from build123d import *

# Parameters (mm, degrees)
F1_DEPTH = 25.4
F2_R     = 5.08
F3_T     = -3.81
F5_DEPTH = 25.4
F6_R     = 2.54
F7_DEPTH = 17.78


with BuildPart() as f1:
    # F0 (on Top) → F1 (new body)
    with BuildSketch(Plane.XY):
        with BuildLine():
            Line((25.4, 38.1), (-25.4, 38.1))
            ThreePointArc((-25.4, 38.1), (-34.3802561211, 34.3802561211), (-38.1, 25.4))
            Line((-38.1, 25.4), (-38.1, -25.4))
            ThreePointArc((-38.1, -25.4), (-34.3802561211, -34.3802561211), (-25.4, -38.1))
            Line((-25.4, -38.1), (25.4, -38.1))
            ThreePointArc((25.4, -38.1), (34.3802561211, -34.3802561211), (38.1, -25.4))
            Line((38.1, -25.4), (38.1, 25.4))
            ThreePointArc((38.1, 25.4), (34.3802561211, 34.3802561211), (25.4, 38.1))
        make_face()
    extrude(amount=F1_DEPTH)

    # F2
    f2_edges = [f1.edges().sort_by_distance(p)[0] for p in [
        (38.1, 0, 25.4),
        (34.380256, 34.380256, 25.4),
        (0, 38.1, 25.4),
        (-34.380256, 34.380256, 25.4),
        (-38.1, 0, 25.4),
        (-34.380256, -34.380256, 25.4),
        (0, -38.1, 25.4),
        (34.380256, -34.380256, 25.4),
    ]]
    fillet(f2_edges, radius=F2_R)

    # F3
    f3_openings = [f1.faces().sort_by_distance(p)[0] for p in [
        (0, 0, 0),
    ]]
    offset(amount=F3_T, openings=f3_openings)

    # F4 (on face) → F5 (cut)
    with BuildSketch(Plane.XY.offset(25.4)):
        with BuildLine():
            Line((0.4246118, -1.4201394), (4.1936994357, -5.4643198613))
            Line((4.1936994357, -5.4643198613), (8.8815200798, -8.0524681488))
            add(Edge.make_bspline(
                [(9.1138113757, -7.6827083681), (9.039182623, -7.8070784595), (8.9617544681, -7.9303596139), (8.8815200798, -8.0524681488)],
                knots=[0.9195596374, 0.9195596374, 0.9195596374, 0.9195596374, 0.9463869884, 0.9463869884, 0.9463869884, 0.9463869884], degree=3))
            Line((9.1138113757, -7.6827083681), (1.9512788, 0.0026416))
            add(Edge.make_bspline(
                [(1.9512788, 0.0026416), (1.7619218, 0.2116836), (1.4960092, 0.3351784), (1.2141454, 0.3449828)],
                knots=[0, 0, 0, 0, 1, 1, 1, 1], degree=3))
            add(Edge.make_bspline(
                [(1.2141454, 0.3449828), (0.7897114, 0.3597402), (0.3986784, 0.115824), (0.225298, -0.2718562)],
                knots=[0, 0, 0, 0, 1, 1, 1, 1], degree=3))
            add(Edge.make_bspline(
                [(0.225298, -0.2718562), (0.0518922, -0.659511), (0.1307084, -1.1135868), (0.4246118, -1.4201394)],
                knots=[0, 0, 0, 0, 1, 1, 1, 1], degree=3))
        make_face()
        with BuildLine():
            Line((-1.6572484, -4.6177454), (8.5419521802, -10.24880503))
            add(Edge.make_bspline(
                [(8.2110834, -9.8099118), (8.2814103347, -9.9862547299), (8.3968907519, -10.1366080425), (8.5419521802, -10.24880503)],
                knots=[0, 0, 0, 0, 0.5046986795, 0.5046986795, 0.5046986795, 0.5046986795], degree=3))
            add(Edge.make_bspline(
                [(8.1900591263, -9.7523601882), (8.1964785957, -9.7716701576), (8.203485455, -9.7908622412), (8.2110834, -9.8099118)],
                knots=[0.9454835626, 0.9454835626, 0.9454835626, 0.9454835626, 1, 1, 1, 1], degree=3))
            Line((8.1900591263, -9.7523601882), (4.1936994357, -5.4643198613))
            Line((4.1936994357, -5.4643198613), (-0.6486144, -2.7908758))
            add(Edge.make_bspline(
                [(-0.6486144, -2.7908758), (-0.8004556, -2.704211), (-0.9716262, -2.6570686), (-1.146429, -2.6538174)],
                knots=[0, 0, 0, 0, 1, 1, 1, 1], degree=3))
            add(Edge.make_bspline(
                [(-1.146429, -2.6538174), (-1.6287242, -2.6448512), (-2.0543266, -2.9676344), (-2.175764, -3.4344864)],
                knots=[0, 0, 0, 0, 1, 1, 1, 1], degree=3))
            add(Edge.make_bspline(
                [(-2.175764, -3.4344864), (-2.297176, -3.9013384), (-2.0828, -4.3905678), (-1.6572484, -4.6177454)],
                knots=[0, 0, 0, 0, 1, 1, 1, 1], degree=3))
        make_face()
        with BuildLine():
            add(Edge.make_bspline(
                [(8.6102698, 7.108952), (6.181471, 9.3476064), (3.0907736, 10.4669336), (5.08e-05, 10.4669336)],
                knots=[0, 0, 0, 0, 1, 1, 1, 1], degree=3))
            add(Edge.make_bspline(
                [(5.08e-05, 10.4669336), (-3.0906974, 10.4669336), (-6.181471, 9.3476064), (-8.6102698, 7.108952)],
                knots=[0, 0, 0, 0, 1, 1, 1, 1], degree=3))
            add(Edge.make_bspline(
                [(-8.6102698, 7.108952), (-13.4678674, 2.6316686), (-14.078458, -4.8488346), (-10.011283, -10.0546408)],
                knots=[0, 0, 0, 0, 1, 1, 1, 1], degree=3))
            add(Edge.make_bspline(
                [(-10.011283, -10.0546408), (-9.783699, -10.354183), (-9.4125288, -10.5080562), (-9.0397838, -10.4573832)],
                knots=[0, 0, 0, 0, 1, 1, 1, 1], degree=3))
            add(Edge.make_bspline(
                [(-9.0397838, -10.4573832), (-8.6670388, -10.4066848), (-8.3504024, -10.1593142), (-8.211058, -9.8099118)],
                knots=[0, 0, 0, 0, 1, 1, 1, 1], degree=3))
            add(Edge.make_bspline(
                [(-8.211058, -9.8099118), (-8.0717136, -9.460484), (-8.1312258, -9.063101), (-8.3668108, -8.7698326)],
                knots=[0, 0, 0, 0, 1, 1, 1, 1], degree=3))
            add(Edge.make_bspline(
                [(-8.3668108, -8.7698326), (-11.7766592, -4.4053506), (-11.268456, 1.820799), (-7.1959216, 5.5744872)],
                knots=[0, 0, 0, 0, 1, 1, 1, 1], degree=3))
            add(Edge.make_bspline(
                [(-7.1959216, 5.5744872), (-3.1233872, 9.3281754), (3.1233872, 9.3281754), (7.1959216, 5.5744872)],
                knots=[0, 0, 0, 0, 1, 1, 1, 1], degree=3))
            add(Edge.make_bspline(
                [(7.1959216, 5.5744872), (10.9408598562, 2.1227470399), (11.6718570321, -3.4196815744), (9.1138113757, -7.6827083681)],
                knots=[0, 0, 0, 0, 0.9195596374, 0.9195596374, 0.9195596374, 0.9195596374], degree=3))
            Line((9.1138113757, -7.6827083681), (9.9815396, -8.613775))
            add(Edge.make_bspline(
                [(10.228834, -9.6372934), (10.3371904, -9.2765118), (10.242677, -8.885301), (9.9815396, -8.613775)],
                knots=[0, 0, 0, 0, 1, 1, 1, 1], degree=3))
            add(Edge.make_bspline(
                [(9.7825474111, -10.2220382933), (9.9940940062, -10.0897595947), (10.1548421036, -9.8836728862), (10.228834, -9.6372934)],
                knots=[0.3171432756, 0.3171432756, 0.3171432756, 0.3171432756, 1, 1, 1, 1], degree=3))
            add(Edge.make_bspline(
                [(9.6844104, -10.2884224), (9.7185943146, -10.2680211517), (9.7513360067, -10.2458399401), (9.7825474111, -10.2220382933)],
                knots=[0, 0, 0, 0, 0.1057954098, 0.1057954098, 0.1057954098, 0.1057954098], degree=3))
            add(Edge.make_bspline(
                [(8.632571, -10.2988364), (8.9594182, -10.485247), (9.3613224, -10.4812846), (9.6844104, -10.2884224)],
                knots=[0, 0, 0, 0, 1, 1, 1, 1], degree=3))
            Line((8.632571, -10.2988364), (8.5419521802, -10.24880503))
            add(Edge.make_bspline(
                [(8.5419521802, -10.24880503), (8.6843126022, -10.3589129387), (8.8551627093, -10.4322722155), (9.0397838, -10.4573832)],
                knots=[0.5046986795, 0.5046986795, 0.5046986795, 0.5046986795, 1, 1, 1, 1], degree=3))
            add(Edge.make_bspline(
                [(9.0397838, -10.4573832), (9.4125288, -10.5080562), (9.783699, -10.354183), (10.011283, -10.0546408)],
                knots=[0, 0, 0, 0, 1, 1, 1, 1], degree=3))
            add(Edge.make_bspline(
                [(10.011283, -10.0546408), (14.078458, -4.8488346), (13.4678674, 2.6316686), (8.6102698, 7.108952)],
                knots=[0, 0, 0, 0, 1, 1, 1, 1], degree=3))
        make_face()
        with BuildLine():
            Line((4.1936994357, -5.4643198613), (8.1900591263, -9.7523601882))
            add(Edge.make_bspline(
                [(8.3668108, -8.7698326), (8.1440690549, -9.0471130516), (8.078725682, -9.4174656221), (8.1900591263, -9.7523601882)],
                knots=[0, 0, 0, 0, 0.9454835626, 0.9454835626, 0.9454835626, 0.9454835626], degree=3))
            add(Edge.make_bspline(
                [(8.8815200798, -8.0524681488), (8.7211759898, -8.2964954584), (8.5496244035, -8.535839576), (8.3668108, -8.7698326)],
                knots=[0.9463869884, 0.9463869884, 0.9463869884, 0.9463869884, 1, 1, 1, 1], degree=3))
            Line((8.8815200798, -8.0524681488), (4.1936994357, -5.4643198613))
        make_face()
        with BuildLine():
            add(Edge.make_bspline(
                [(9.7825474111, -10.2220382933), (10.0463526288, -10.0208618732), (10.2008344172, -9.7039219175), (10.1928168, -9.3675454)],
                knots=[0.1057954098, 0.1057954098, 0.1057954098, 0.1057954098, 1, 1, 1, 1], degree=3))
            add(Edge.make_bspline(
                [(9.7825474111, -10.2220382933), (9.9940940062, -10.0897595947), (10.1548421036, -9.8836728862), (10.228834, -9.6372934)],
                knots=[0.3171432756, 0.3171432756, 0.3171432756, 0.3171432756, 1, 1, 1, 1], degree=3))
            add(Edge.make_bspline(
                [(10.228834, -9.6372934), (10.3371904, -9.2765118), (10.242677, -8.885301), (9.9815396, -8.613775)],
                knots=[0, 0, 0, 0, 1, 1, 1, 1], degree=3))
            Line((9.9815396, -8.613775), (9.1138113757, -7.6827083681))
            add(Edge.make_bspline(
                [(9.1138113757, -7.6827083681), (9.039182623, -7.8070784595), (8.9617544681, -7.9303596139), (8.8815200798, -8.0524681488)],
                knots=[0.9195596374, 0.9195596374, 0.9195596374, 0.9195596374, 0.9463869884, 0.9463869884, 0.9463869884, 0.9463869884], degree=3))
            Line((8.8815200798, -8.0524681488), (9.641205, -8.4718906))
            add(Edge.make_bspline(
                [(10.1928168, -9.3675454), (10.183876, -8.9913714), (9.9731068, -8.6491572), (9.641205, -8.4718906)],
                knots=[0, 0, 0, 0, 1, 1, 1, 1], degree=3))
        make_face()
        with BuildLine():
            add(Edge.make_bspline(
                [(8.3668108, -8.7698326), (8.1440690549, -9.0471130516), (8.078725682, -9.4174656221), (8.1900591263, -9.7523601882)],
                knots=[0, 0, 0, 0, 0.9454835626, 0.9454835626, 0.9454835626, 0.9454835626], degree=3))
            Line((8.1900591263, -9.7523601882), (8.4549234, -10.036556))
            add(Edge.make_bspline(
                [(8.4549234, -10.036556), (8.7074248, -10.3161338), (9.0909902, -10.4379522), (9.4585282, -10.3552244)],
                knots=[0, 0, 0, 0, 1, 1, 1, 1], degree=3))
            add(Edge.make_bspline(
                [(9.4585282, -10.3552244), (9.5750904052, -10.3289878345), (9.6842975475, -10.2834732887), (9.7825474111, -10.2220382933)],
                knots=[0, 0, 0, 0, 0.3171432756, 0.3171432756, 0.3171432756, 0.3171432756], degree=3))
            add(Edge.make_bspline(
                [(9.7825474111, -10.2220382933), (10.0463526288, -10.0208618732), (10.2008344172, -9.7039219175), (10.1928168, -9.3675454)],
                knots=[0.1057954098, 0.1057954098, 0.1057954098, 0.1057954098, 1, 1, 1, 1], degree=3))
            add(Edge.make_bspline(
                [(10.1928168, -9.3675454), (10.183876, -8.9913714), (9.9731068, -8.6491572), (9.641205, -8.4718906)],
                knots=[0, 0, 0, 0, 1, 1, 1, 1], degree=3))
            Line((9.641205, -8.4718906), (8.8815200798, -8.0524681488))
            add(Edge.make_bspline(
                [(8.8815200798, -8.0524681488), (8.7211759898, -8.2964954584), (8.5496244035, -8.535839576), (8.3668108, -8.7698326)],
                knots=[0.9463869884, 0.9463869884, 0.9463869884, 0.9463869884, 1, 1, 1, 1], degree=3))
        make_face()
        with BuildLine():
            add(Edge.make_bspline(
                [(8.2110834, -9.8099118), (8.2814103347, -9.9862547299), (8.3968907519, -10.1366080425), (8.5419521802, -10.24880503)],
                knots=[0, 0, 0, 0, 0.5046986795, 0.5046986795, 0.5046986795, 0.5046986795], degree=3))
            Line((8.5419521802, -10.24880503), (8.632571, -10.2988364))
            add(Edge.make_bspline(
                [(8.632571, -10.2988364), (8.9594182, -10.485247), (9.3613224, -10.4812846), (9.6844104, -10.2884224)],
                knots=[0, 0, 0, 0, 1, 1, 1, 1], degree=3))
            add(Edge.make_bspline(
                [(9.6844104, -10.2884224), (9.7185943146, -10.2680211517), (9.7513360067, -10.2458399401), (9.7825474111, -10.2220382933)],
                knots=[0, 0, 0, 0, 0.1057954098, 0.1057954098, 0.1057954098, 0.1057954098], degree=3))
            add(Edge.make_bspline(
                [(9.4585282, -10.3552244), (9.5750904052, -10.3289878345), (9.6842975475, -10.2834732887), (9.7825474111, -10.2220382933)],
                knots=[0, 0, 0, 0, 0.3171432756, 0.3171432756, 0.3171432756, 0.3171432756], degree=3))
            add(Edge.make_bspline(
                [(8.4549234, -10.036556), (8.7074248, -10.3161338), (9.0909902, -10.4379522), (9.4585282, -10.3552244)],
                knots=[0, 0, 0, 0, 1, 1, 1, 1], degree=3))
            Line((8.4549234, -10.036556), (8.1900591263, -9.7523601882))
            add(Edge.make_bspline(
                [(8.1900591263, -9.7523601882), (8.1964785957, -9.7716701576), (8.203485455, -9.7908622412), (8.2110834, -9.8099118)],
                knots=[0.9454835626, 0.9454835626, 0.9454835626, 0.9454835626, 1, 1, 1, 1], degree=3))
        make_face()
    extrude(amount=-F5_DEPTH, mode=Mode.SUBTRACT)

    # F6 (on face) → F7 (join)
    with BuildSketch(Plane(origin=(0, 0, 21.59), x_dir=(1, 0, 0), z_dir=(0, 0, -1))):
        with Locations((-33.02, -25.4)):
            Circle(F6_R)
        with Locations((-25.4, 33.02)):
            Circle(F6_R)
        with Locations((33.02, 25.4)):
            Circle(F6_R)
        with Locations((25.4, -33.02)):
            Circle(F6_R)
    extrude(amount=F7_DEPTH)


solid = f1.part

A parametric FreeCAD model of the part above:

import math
import FreeCAD as App
import Part
import Sketcher
Q = App.Units.Quantity


def edges_at(feature, points):
    """Names of the edges that pass closest to the given points."""
    edges = feature.Shape.Edges
    near = lambda p: min(range(len(edges)), key=lambda i: edges[i].distToShape(Part.Vertex(*p))[0])
    return sorted({f"Edge{near(p) + 1}" for p in points})


def faces_at(feature, points):
    """Names of the faces that lie closest to the given points."""
    faces = feature.Shape.Faces
    near = lambda p: min(range(len(faces)), key=lambda i: faces[i].distToShape(Part.Vertex(*p))[0])
    return sorted({f"Face{near(p) + 1}" for p in points})

doc = App.newDocument("Part")
body = doc.addObject("PartDesign::Body", "Body")

# Sketch on XY plane
sketch1 = body.newObject("Sketcher::SketchObject", "Sketch")
sketch1.AttachmentSupport = (doc.getObject("XY_Plane"), [""])
sketch1.MapMode = "FlatFace"
sketch1.addGeometry(Part.LineSegment(App.Vector(25, 38, 0), App.Vector(-25, 38, 0)), False)
sketch1.addGeometry(Part.ArcOfCircle(Part.Circle(App.Vector(-25, 25, 0), App.Vector(0, 0, 1), 13), math.radians(90), math.radians(180)), False)
sketch1.addGeometry(Part.LineSegment(App.Vector(-38, 25, 0), App.Vector(-38, -25, 0)), False)
sketch1.addGeometry(Part.ArcOfCircle(Part.Circle(App.Vector(-25, -25, 0), App.Vector(0, 0, 1), 13), math.radians(180), math.radians(270)), False)
sketch1.addGeometry(Part.LineSegment(App.Vector(-25, -38, 0), App.Vector(25, -38, 0)), False)
sketch1.addGeometry(Part.ArcOfCircle(Part.Circle(App.Vector(25, -25, 0), App.Vector(0, 0, 1), 13), math.radians(-90), math.radians(0)), False)
sketch1.addGeometry(Part.LineSegment(App.Vector(38, -25, 0), App.Vector(38, 25, 0)), False)
sketch1.addGeometry(Part.ArcOfCircle(Part.Circle(App.Vector(25, 25, 0), App.Vector(0, 0, 1), 13), math.radians(0), math.radians(90)), False)
sketch1.addConstraint(Sketcher.Constraint("Tangent", 0, 2, 1, 1))
sketch1.addConstraint(Sketcher.Constraint("Tangent", 1, 2, 2, 1))
sketch1.addConstraint(Sketcher.Constraint("Tangent", 2, 2, 3, 1))
sketch1.addConstraint(Sketcher.Constraint("Tangent", 3, 2, 4, 1))
sketch1.addConstraint(Sketcher.Constraint("Tangent", 4, 2, 5, 1))
sketch1.addConstraint(Sketcher.Constraint("Tangent", 5, 2, 6, 1))
sketch1.addConstraint(Sketcher.Constraint("Tangent", 6, 2, 7, 1))
sketch1.addConstraint(Sketcher.Constraint("Tangent", 7, 2, 0, 1))
sketch1.addConstraint(Sketcher.Constraint("Horizontal", 0))
sketch1.addConstraint(Sketcher.Constraint("Vertical", 2))
sketch1.addConstraint(Sketcher.Constraint("Horizontal", 4))
sketch1.addConstraint(Sketcher.Constraint("Vertical", 6))
sketch1.addConstraint(Sketcher.Constraint("Equal", 1, 3))
sketch1.addConstraint(Sketcher.Constraint("Equal", 3, 5))
sketch1.addConstraint(Sketcher.Constraint("Equal", 5, 7))
sketch1.addConstraint(Sketcher.Constraint("Symmetric", 1, 3, 5, 3, -1, 1))
sketch1.addConstraint(Sketcher.Constraint("Equal", 4, 2))
sketch1.addConstraint(Sketcher.Constraint("Radius", 1, Q("0.5 in")))
sketch1.addConstraint(Sketcher.Constraint("DistanceX", 0, 2, 0, 1, Q("2 in")))
pad1 = body.newObject("PartDesign::Pad", "Pad")
pad1.Profile = sketch1
pad1.Length = Q("1 in")
doc.recompute()

fillet = body.newObject("PartDesign::Fillet", "Fillet")
fillet.Base = (pad1, edges_at(pad1, [
    (38.1, 0, 25.4),
    (34.38, 34.38, 25.4),
    (0, 38.1, 25.4),
    (-34.38, 34.38, 25.4),
    (-38.1, 0, 25.4),
    (-34.38, -34.38, 25.4),
    (0, -38.1, 25.4),
    (34.38, -34.38, 25.4),
]))
fillet.Radius = Q("0.2 in")
doc.recompute()

thickness = body.newObject("PartDesign::Thickness", "Thickness")
thickness.Base = (fillet, faces_at(fillet, [(0, 0, 0)]))
thickness.Value = Q("0.15 in")
thickness.Reversed = True
thickness.Join = "Arc"

# Sketch on XY plane
sketch2 = body.newObject("Sketcher::SketchObject", "Sketch001")
sketch2.AttachmentSupport = (doc.getObject("XY_Plane"), [""])
sketch2.MapMode = "FlatFace"
sketch2.AttachmentOffset = App.Placement(App.Vector(0, 0, 1 * 25.4), App.Rotation())
sketch2.addGeometry(Part.LineSegment(App.Vector(-1.657248, -4.617745, 0), App.Vector(8.541952, -10.248805, 0)), False)
sketch2.addGeometry(Part.BSplineCurve([App.Vector(8.541952, -10.248805, 0), App.Vector(8.684313, -10.358913, 0), App.Vector(8.855163, -10.432272, 0), App.Vector(9.039784, -10.457383, 0)], [4, 4], [0.50469868, 1], False, 3, [1, 1, 1, 1], False), False)
sketch2.addGeometry(Part.BSplineCurve([App.Vector(9.039784, -10.457383, 0), App.Vector(9.412529, -10.508056, 0), App.Vector(9.783699, -10.354183, 0), App.Vector(10.011283, -10.054641, 0)], [4, 4], [0, 1], False, 3, [1, 1, 1, 1], False), False)
sketch2.addGeometry(Part.BSplineCurve([App.Vector(10.011283, -10.054641, 0), App.Vector(14.078458, -4.848835, 0), App.Vector(13.467867, 2.631669, 0), App.Vector(8.61027, 7.108952, 0)], [4, 4], [0, 1], False, 3, [1, 1, 1, 1], False), False)
sketch2.addGeometry(Part.BSplineCurve([App.Vector(8.61027, 7.108952, 0), App.Vector(6.181471, 9.347606, 0), App.Vector(3.090774, 10.466934, 0), App.Vector(-3.090697, 10.466934, 0), App.Vector(-6.181471, 9.347606, 0), App.Vector(-8.61027, 7.108952, 0)], [4, 2, 4], [0, 1, 2.000008218], False, 3, [1, 1, 1, 1, 1, 1], False), False)
sketch2.addGeometry(Part.BSplineCurve([App.Vector(-8.61027, 7.108952, 0), App.Vector(-13.467867, 2.631669, 0), App.Vector(-14.078458, -4.848835, 0), App.Vector(-10.011283, -10.054641, 0)], [4, 4], [0, 1], False, 3, [1, 1, 1, 1], False), False)
sketch2.addGeometry(Part.BSplineCurve([App.Vector(-10.011283, -10.054641, 0), App.Vector(-9.783699, -10.354183, 0), App.Vector(-9.412529, -10.508056, 0), App.Vector(-9.039784, -10.457383, 0)], [4, 4], [0, 1], False, 3, [1, 1, 1, 1], False), False)
sketch2.addGeometry(Part.BSplineCurve([App.Vector(-9.039784, -10.457383, 0), App.Vector(-8.667039, -10.406685, 0), App.Vector(-8.350402, -10.159314, 0), App.Vector(-8.211058, -9.809912, 0)], [4, 4], [0, 1], False, 3, [1, 1, 1, 1], False), False)
sketch2.addGeometry(Part.BSplineCurve([App.Vector(-8.211058, -9.809912, 0), App.Vector(-8.071714, -9.460484, 0), App.Vector(-8.131226, -9.063101, 0), App.Vector(-8.366811, -8.769833, 0)], [4, 4], [0, 1], False, 3, [1, 1, 1, 1], False), False)
sketch2.addGeometry(Part.BSplineCurve([App.Vector(-8.366811, -8.769833, 0), App.Vector(-11.776659, -4.405351, 0), App.Vector(-11.268456, 1.820799, 0), App.Vector(-3.123387, 9.328175, 0), App.Vector(3.123387, 9.328175, 0), App.Vector(7.195922, 5.574487, 0)], [4, 2, 4], [0, 1, 2], False, 3, [1, 1, 1, 1, 1, 1], False), False)
sketch2.addGeometry(Part.BSplineCurve([App.Vector(7.195922, 5.574487, 0), App.Vector(10.94086, 2.122747, 0), App.Vector(11.671857, -3.419682, 0), App.Vector(9.113811, -7.682708, 0)], [4, 4], [0, 0.919559637], False, 3, [1, 1, 1, 1], False), False)
sketch2.addGeometry(Part.LineSegment(App.Vector(9.113811, -7.682708, 0), App.Vector(1.951279, 0.002642, 0)), False)
sketch2.addGeometry(Part.BSplineCurve([App.Vector(1.951279, 0.002642, 0), App.Vector(1.761922, 0.211684, 0), App.Vector(1.496009, 0.335178, 0), App.Vector(1.214145, 0.344983, 0)], [4, 4], [0, 1], False, 3, [1, 1, 1, 1], False), False)
sketch2.addGeometry(Part.BSplineCurve([App.Vector(1.214145, 0.344983, 0), App.Vector(0.789711, 0.35974, 0), App.Vector(0.398678, 0.115824, 0), App.Vector(0.225298, -0.271856, 0)], [4, 4], [0, 1], False, 3, [1, 1, 1, 1], False), False)
sketch2.addGeometry(Part.BSplineCurve([App.Vector(0.225298, -0.271856, 0), App.Vector(0.051892, -0.659511, 0), App.Vector(0.130708, -1.113587, 0), App.Vector(0.424612, -1.420139, 0)], [4, 4], [0, 1], False, 3, [1, 1, 1, 1], False), False)
sketch2.addGeometry(Part.LineSegment(App.Vector(0.424612, -1.420139, 0), App.Vector(4.193699, -5.46432, 0)), False)
sketch2.addGeometry(Part.LineSegment(App.Vector(4.193699, -5.46432, 0), App.Vector(-0.648614, -2.790876, 0)), False)
sketch2.addGeometry(Part.BSplineCurve([App.Vector(-0.648614, -2.790876, 0), App.Vector(-0.800456, -2.704211, 0), App.Vector(-0.971626, -2.657069, 0), App.Vector(-1.146429, -2.653817, 0)], [4, 4], [0, 1], False, 3, [1, 1, 1, 1], False), False)
sketch2.addGeometry(Part.BSplineCurve([App.Vector(-1.146429, -2.653817, 0), App.Vector(-1.628724, -2.644851, 0), App.Vector(-2.054327, -2.967634, 0), App.Vector(-2.175764, -3.434486, 0)], [4, 4], [0, 1], False, 3, [1, 1, 1, 1], False), False)
sketch2.addGeometry(Part.BSplineCurve([App.Vector(-2.175764, -3.434486, 0), App.Vector(-2.297176, -3.901338, 0), App.Vector(-2.0828, -4.390568, 0), App.Vector(-1.657248, -4.617745, 0)], [4, 4], [0, 1], False, 3, [1, 1, 1, 1], False), False)
sketch2.addConstraint(Sketcher.Constraint("Block", 1))
sketch2.addConstraint(Sketcher.Constraint("Block", 2))
sketch2.addConstraint(Sketcher.Constraint("Block", 3))
sketch2.addConstraint(Sketcher.Constraint("Block", 4))
sketch2.addConstraint(Sketcher.Constraint("Block", 5))
sketch2.addConstraint(Sketcher.Constraint("Block", 6))
sketch2.addConstraint(Sketcher.Constraint("Block", 7))
sketch2.addConstraint(Sketcher.Constraint("Block", 8))
sketch2.addConstraint(Sketcher.Constraint("Block", 9))
sketch2.addConstraint(Sketcher.Constraint("Block", 10))
sketch2.addConstraint(Sketcher.Constraint("Block", 12))
sketch2.addConstraint(Sketcher.Constraint("Block", 13))
sketch2.addConstraint(Sketcher.Constraint("Block", 14))
sketch2.addConstraint(Sketcher.Constraint("Block", 17))
sketch2.addConstraint(Sketcher.Constraint("Block", 18))
sketch2.addConstraint(Sketcher.Constraint("Block", 19))
sketch2.addConstraint(Sketcher.Constraint("Coincident", 0, 2, 1, 1))
sketch2.addConstraint(Sketcher.Constraint("Coincident", 10, 2, 11, 1))
sketch2.addConstraint(Sketcher.Constraint("Coincident", 11, 2, 12, 1))
sketch2.addConstraint(Sketcher.Constraint("Coincident", 14, 2, 15, 1))
sketch2.addConstraint(Sketcher.Constraint("Coincident", 15, 2, 16, 1))
sketch2.addConstraint(Sketcher.Constraint("Coincident", 16, 2, 17, 1))
sketch2.addConstraint(Sketcher.Constraint("Coincident", 19, 2, 0, 1))
sketch2.addConstraint(Sketcher.Constraint("DistanceX", -1, 1, 15, 2, Q("4.193699 mm")))
sketch2.addConstraint(Sketcher.Constraint("Distance", 15, Q("5.528238 mm")))
pocket1 = body.newObject("PartDesign::Pocket", "Pocket")
pocket1.Profile = sketch2
pocket1.Length = Q("1 in")

# Sketch on XY plane
sketch3 = body.newObject("Sketcher::SketchObject", "Sketch002")
sketch3.AttachmentSupport = (doc.getObject("XY_Plane"), [""])
sketch3.MapMode = "FlatFace"
sketch3.AttachmentOffset = App.Placement(App.Vector(0, 0, 0.85 * 25.4), App.Rotation())
sketch3.addGeometry(Part.Circle(App.Vector(-33, 25.4, 0), App.Vector(0, 0, 1), 2.5), False)
sketch3.addGeometry(Part.Circle(App.Vector(-25.4, -33, 0), App.Vector(0, 0, 1), 2.5), False)
sketch3.addGeometry(Part.Circle(App.Vector(33, -25.4, 0), App.Vector(0, 0, 1), 2.5), False)
sketch3.addGeometry(Part.Circle(App.Vector(25.4, 33, 0), App.Vector(0, 0, 1), 2.5), False)
sketch3.addConstraint(Sketcher.Constraint("Equal", 0, 1))
sketch3.addConstraint(Sketcher.Constraint("Equal", 1, 2))
sketch3.addConstraint(Sketcher.Constraint("Equal", 2, 3))
sketch3.addConstraint(Sketcher.Constraint("Symmetric", 0, 3, 2, 3, -1, 1))
sketch3.addConstraint(Sketcher.Constraint("Symmetric", 1, 3, 3, 3, -1, 1))
sketch3.addConstraint(Sketcher.Constraint("Diameter", 0, Q("0.2 in")))
sketch3.addConstraint(Sketcher.Constraint("DistanceY", -1, 1, 0, 3, Q("1 in")))
sketch3.addConstraint(Sketcher.Constraint("DistanceX", 1, 3, -1, 1, Q("1 in")))
sketch3.addConstraint(Sketcher.Constraint("DistanceX", 0, 3, -1, 1, Q("1.3 in")))
sketch3.addConstraint(Sketcher.Constraint("DistanceY", 1, 3, -1, 1, Q("1.3 in")))
pad2 = body.newObject("PartDesign::Pad", "Pad001")
pad2.Profile = sketch3
pad2.Length = Q("0.7 in")
pad2.Reversed = True

doc.recompute()
